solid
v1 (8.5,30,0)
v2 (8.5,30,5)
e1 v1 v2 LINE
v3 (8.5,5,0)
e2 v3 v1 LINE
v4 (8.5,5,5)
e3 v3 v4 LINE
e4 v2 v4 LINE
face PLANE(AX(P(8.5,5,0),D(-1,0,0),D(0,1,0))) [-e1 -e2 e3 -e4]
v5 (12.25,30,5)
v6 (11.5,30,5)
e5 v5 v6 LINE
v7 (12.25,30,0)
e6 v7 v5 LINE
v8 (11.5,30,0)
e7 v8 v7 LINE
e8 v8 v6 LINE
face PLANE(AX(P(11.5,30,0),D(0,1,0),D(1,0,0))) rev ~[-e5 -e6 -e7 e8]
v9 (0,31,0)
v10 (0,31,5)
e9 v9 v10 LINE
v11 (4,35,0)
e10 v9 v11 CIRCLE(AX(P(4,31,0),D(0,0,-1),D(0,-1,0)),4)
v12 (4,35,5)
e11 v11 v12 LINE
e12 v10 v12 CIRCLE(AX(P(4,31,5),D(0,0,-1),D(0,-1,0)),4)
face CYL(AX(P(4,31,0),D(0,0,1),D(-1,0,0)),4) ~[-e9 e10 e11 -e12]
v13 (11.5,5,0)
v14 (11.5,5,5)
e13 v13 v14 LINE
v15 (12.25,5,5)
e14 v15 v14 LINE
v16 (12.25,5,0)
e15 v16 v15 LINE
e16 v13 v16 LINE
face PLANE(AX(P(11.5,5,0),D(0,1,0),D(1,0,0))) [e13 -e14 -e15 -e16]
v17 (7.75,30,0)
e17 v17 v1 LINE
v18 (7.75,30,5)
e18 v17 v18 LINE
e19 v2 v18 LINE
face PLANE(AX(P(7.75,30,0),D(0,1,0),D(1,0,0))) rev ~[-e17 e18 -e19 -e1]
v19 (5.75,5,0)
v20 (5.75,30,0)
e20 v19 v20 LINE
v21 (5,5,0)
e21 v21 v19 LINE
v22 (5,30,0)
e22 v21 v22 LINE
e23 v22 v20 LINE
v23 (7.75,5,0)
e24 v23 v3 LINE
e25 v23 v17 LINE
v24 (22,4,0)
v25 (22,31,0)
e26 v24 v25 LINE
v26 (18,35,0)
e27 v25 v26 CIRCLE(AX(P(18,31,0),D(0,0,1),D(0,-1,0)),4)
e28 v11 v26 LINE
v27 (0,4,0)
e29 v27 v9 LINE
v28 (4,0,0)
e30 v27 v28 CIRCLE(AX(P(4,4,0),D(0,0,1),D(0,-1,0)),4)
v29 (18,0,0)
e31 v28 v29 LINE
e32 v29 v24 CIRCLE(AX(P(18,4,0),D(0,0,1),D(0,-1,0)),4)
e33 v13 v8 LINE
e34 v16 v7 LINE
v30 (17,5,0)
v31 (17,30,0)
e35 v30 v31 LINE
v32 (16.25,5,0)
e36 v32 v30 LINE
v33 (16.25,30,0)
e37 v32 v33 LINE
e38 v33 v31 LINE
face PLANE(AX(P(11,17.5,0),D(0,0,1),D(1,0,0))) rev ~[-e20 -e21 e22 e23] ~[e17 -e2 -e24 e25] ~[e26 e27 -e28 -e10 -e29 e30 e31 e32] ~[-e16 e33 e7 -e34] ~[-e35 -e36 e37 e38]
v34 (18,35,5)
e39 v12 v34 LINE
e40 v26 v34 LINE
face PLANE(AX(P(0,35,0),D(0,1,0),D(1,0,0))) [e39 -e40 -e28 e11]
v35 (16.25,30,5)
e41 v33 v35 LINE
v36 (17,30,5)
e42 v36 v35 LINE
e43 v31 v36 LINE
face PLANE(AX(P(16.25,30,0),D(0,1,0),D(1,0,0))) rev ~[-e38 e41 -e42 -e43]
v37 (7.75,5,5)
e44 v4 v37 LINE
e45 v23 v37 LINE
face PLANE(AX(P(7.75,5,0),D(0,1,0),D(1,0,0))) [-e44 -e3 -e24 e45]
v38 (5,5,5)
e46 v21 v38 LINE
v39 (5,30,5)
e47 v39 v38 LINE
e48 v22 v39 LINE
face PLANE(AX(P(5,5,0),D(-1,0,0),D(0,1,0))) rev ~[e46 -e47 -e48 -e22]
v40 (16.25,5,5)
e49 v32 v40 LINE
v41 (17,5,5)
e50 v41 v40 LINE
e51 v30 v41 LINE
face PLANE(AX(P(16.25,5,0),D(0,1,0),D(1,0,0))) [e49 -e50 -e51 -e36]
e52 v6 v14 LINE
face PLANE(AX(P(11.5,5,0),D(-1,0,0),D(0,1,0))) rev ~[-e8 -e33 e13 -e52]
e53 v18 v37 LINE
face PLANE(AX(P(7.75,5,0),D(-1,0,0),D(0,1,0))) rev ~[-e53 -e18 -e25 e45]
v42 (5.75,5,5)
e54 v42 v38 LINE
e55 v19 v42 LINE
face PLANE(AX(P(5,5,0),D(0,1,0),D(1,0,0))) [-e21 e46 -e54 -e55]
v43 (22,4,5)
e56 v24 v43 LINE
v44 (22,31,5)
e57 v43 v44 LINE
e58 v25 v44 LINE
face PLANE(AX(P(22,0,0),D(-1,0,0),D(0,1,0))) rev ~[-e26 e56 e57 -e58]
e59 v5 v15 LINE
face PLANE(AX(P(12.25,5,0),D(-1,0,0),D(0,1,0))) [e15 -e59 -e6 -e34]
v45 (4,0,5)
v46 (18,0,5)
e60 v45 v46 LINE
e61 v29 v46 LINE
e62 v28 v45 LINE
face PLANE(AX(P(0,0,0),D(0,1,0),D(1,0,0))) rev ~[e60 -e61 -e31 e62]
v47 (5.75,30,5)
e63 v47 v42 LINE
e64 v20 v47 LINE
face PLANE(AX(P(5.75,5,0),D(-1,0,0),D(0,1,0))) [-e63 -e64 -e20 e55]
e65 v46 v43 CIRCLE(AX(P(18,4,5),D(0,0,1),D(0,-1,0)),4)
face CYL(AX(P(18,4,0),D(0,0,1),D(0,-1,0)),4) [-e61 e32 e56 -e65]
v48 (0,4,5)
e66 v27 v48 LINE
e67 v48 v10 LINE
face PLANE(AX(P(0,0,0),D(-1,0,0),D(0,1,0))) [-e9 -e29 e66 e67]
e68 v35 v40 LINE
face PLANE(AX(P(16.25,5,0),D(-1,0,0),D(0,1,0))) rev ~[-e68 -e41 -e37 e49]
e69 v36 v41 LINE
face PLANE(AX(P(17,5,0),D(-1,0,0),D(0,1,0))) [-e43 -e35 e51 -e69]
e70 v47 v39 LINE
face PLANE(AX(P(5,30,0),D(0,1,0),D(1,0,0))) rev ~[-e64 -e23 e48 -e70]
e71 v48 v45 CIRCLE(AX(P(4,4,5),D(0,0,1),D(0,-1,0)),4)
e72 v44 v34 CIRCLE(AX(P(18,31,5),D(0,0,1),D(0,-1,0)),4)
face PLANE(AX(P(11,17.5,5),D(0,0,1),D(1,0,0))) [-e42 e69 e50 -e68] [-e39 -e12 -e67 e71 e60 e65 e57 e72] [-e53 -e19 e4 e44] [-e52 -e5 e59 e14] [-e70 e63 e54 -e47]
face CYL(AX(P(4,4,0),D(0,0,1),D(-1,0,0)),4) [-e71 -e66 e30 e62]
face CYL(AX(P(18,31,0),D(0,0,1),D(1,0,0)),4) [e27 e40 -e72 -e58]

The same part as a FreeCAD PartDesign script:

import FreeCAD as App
import Part
import Sketcher
from FreeCAD import Vector
Q = App.Units.Quantity


def edges_at(feature, points):
    """Names of the edges that pass closest to the given points."""
    edges = feature.Shape.Edges
    near = lambda p: min(range(len(edges)), key=lambda i: edges[i].distToShape(Part.Vertex(*p))[0])
    return sorted({f"Edge{near(p) + 1}" for p in points})


def add_polygon(sketch, points):
    """Adds a closed chain of lines whose ends are joined by coincident constraints."""
    first, n = sketch.GeometryCount, len(points)
    for a, b in zip(points, points[1:] + points[:1]):
        sketch.addGeometry(Part.LineSegment(App.Vector(*a, 0), App.Vector(*b, 0)), False)
    for i in range(n):
        sketch.addConstraint(Sketcher.Constraint("Coincident", first + i, 2, first + (i + 1) % n, 1))

doc = App.newDocument("Part")
body = doc.addObject("PartDesign::Body", "Body")

sketch1 = body.newObject("Sketcher::SketchObject", "Sketch")
sketch1.AttachmentSupport = (doc.getObject("XY_Plane"), [""])
sketch1.MapMode = "FlatFace"
add_polygon(sketch1, [(11.5, 30), (11.5, 5), (12.25, 5), (12.25, 30)])
sketch1.addConstraint(Sketcher.Constraint("Vertical", 0))
sketch1.addConstraint(Sketcher.Constraint("Horizontal", 1))
sketch1.addConstraint(Sketcher.Constraint("Vertical", 2))
sketch1.addConstraint(Sketcher.Constraint("Horizontal", 3))
sketch1.addConstraint(Sketcher.Constraint("DistanceY", 0, 2, 0, 1, Q("25 mm")))
sketch1.addConstraint(Sketcher.Constraint("DistanceY", -1, 1, 0, 2, Q("5 mm")))
sketch1.addConstraint(Sketcher.Constraint("DistanceX", 1, 1, 1, 2, Q("0.75 mm")))
sketch1.addConstraint(Sketcher.Constraint("DistanceX", -1, 1, 0, 2, Q("11.5 mm")))
pad1 = body.newObject("PartDesign::Pad", "Pad")
pad1.Profile = sketch1
pad1.Length = 10
body2 = doc.addObject("PartDesign::Body", "Body001")

sketch2 = body2.newObject("Sketcher::SketchObject", "Sketch001")
sketch2.AttachmentSupport = (doc.getObject("XY_Plane001"), [""])
sketch2.MapMode = "FlatFace"
add_polygon(sketch2, [(7.75, 30), (7.75, 5), (8.5, 5), (8.5, 30)])
sketch2.addConstraint(Sketcher.Constraint("Vertical", 0))
sketch2.addConstraint(Sketcher.Constraint("Horizontal", 1))
sketch2.addConstraint(Sketcher.Constraint("Vertical", 2))
sketch2.addConstraint(Sketcher.Constraint("Horizontal", 3))
sketch2.addConstraint(Sketcher.Constraint("DistanceY", 0, 2, 0, 1, Q("25 mm")))
sketch2.addConstraint(Sketcher.Constraint("DistanceY", -1, 1, 0, 2, Q("5 mm")))
sketch2.addConstraint(Sketcher.Constraint("DistanceX", 1, 1, 1, 2, Q("0.75 mm")))
sketch2.addConstraint(Sketcher.Constraint("DistanceX", -1, 1, 1, 2, Q("8.5 mm")))
pad2 = body2.newObject("PartDesign::Pad", "Pad001")
pad2.Profile = sketch2
pad2.Length = 10
body3 = doc.addObject("PartDesign::Body", "Body002")

sketch3 = body3.newObject("Sketcher::SketchObject", "Sketch002")
sketch3.AttachmentSupport = (doc.getObject("XY_Plane002"), [""])
sketch3.MapMode = "FlatFace"
add_polygon(sketch3, [(16.25, 30), (16.25, 5), (17, 5), (17, 30)])
sketch3.addConstraint(Sketcher.Constraint("Vertical", 0))
sketch3.addConstraint(Sketcher.Constraint("Horizontal", 1))
sketch3.addConstraint(Sketcher.Constraint("Vertical", 2))
sketch3.addConstraint(Sketcher.Constraint("Horizontal", 3))
sketch3.addConstraint(Sketcher.Constraint("DistanceY", 0, 2, 0, 1, Q("25 mm")))
sketch3.addConstraint(Sketcher.Constraint("DistanceY", -1, 1, 0, 2, Q("5 mm")))
sketch3.addConstraint(Sketcher.Constraint("DistanceX", -1, 1, 1, 2, Q("17 mm")))
sketch3.addConstraint(Sketcher.Constraint("DistanceX", 1, 1, 1, 2, Q("0.75 mm")))
pad3 = body3.newObject("PartDesign::Pad", "Pad002")
pad3.Profile = sketch3
pad3.Length = 10
body4 = doc.addObject("PartDesign::Body", "Body003")
body4.AllowCompound = True

sketch4 = body4.newObject("Sketcher::SketchObject", "Sketch003")
sketch4.AttachmentSupport = (doc.getObject("XY_Plane003"), [""])
sketch4.MapMode = "FlatFace"
add_polygon(sketch4, [(5, 30), (5, 5), (5.75, 5), (5.75, 30)])
sketch4.addConstraint(Sketcher.Constraint("Vertical", 0))
sketch4.addConstraint(Sketcher.Constraint("Horizontal", 1))
sketch4.addConstraint(Sketcher.Constraint("Vertical", 2))
sketch4.addConstraint(Sketcher.Constraint("Horizontal", 3))
sketch4.addConstraint(Sketcher.Constraint("DistanceY", 0, 2, 0, 1, Q("25 mm")))
sketch4.addConstraint(Sketcher.Constraint("DistanceX", -1, 1, 0, 2, Q("5 mm")))
sketch4.addConstraint(Sketcher.Constraint("DistanceY", -1, 1, 0, 2, Q("5 mm")))
sketch4.addConstraint(Sketcher.Constraint("DistanceX", 1, 1, 1, 2, Q("0.75 mm")))
pad4 = body4.newObject("PartDesign::Pad", "Pad003")
pad4.Profile = sketch4
pad4.Length = 10
doc.recompute()

boolean = body4.newObject("PartDesign::Boolean", "Boolean")
boolean.Type = "Fuse"
boolean.addObjects([body])
doc.recompute()

boolean2 = body4.newObject("PartDesign::Boolean", "Boolean001")
boolean2.Type = "Fuse"
boolean2.addObjects([body2])
doc.recompute()

boolean3 = body4.newObject("PartDesign::Boolean", "Boolean002")
boolean3.Type = "Fuse"
boolean3.addObjects([body3])
body5 = doc.addObject("PartDesign::Body", "Body004")

sketch5 = body5.newObject("Sketcher::SketchObject", "Sketch004")
sketch5.AttachmentSupport = (doc.getObject("XY_Plane004"), [""])
sketch5.MapMode = "FlatFace"
add_polygon(sketch5, [(0, 35), (0, 0), (22, 0), (22, 35)])
sketch5.addConstraint(Sketcher.Constraint("Vertical", 0))
sketch5.addConstraint(Sketcher.Constraint("Horizontal", 1))
sketch5.addConstraint(Sketcher.Constraint("Vertical", 2))
sketch5.addConstraint(Sketcher.Constraint("Horizontal", 3))
sketch5.addConstraint(Sketcher.Constraint("Coincident", 0, 2, -1, 1))
sketch5.addConstraint(Sketcher.Constraint("DistanceX", 1, 1, 1, 2, Q("22 mm")))
sketch5.addConstraint(Sketcher.Constraint("DistanceY", 0, 2, 0, 1, Q("35 mm")))
pad5 = body5.newObject("PartDesign::Pad", "Pad004")
pad5.Profile = sketch5
pad5.Length = 5
doc.recompute()

fillet = body5.newObject("PartDesign::Fillet", "Fillet")
fillet.Base = (pad5, edges_at(pad5, [
    (0, 0, 2.5),
    (0, 35, 2.5),
    (22, 0, 2.5),
    (22, 35, 2.5),
]))
fillet.Radius = 4
doc.recompute()

boolean4 = body5.newObject("PartDesign::Boolean", "Boolean003")
boolean4.Type = "Cut"
boolean4.addObjects([body4])

doc.recompute()
